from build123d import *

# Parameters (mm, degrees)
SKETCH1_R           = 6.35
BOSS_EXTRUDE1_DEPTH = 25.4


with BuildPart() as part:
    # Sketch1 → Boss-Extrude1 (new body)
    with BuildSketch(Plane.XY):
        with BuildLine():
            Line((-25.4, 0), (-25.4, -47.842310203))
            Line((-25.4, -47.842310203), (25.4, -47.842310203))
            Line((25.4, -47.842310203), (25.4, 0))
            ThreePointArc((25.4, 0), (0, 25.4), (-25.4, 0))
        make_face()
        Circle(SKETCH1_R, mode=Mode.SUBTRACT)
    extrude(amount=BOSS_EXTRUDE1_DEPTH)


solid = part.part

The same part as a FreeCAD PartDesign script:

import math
import FreeCAD as App
import Part
import Sketcher

V = App.Vector
Q = App.Units.Quantity

doc = App.newDocument("Part")
body = doc.addObject("PartDesign::Body", "Body")

sketch1 = body.newObject("Sketcher::SketchObject", "Sketch")
sketch1.AttachmentSupport = (doc.getObject("XY_Plane"), [""])
sketch1.MapMode = "FlatFace"
sketch1.addGeometry([
    Part.LineSegment(V(-25, 0, 0), V(-25, -48, 0)),
    Part.LineSegment(V(-25, -48, 0), V(25, -48, 0)),
    Part.LineSegment(V(25, -48, 0), V(25, 0, 0)),
    Part.ArcOfCircle(Part.Circle(V(0, 0, 0), V(0, 0, 1), 25), math.radians(0), math.radians(180)),
    Part.Circle(V(0, 0, 0), V(0, 0, 1), 6),
], False)
sketch1.addConstraint([
    Sketcher.Constraint("Coincident", 0, 2, 1, 1),
    Sketcher.Constraint("Coincident", 1, 2, 2, 1),
    Sketcher.Constraint("Tangent", 2, 2, 3, 1),
    Sketcher.Constraint("Tangent", 3, 2, 0, 1),
    Sketcher.Constraint("Vertical", 0),
    Sketcher.Constraint("Horizontal", 1),
    Sketcher.Constraint("Vertical", 2),
    Sketcher.Constraint("Coincident", 3, 3, -1, 1),
    Sketcher.Constraint("Coincident", 4, 3, -1, 1),
    Sketcher.Constraint("Radius", 3, Q("1 in")),
    Sketcher.Constraint("Diameter", 4, Q("0.5 in")),
    Sketcher.Constraint("DistanceY", 0, 2, 0, 1, Q("47.84231 mm")),
])
pad1 = body.newObject("PartDesign::Pad", "Pad")
pad1.Profile = sketch1
pad1.Length = Q("1 in")

doc.recompute()
